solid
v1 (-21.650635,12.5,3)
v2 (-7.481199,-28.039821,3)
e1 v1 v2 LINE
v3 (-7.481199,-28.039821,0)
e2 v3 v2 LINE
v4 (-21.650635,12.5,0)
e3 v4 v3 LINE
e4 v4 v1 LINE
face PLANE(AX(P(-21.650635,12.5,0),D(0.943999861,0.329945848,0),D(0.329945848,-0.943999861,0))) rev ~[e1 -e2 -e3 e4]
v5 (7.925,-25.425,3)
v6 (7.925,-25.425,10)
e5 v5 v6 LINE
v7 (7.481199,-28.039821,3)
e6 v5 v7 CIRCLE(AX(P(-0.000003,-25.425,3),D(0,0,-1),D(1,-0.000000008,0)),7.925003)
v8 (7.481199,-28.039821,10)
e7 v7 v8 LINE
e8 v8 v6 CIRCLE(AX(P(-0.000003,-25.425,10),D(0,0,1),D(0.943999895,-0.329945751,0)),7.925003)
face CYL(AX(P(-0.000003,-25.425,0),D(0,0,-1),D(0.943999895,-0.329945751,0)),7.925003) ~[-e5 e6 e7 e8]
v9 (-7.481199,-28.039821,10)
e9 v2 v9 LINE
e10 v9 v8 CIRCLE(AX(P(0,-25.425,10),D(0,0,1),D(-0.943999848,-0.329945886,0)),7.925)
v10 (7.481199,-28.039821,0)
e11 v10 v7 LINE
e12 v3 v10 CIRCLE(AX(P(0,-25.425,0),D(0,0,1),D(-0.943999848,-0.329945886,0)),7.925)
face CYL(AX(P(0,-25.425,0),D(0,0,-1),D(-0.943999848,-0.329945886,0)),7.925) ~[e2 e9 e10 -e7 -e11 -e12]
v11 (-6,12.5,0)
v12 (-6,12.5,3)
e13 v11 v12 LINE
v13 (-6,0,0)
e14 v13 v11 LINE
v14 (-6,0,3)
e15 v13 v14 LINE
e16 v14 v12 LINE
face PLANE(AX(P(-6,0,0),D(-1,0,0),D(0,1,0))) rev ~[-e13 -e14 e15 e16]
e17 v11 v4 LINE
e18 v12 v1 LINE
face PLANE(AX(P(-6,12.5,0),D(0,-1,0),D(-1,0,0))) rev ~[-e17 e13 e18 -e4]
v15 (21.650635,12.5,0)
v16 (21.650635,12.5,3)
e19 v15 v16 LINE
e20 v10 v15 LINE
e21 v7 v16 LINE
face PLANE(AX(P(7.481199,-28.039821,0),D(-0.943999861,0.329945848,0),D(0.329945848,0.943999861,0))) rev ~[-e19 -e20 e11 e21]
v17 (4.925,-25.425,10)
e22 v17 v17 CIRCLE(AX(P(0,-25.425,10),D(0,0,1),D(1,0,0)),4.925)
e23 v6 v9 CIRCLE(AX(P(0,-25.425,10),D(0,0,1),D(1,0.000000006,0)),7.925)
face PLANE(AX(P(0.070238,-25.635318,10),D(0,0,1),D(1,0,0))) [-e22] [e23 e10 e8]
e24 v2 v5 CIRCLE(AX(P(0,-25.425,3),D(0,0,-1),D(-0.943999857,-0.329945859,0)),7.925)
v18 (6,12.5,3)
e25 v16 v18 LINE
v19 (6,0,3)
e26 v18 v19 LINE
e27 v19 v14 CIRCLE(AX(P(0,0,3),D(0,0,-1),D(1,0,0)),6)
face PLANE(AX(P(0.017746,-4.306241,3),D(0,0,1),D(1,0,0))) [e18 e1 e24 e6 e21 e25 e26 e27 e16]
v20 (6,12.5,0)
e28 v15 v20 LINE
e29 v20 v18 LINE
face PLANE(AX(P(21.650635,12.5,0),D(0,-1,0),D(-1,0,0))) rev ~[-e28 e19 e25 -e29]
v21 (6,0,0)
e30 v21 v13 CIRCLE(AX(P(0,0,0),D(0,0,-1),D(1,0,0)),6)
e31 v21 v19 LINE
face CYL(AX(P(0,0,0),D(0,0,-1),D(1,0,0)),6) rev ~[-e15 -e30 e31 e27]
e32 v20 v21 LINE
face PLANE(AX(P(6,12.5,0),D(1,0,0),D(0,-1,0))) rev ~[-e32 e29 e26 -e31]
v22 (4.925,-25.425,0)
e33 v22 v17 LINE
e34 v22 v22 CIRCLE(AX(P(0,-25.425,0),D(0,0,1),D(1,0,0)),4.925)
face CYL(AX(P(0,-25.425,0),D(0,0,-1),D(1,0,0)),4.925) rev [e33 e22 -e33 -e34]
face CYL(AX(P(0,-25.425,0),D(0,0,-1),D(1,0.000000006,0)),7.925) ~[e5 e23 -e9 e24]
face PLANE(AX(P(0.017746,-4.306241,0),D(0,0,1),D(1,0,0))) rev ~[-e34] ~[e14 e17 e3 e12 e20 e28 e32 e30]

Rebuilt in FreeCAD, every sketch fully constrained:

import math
import FreeCAD as App
import Part
import Sketcher

V = App.Vector
Q = App.Units.Quantity

doc = App.newDocument("Part")
body = doc.addObject("PartDesign::Body", "Body")

sketch1 = doc.addObject("Sketcher::SketchObject", "Sketch")
body.addObject(sketch1)
sketch1.AttachmentSupport = (doc.XY_Plane, [""])
sketch1.MapMode = "FlatFace"
sketch1.addGeometry([
    Part.ArcOfCircle(Part.Circle(V(0, -25.425, 0), V(0, 0, 1), 7.925), math.radians(0), math.radians(199.265489)),
    Part.ArcOfCircle(Part.Circle(V(0, -25.425, 0), V(0, 0, 1), 7.925), math.radians(-160.734509), math.radians(-19.265491)),
    Part.ArcOfCircle(Part.Circle(V(-0.000003, -25.425, 0), V(0, 0, 1), 7.925003), math.radians(-19.265483), math.radians(0)),
    Part.Circle(V(0, -25.425, 0), V(0, 0, 1), 4.925),
], False)
sketch1.addConstraint([
    Sketcher.Constraint("Tangent", 0, 2, 1, 1),
    Sketcher.Constraint("Tangent", 1, 2, 2, 1),
    Sketcher.Constraint("Tangent", 2, 2, 0, 1),
    Sketcher.Constraint("Coincident", 3, 3, 0, 3),
    Sketcher.Constraint("Symmetric", 0, 2, 1, 2, -2),
    Sketcher.Constraint("Horizontal", 3, 3, 2, 2),
    Sketcher.Constraint("Diameter", 3, Q("9.85 mm")),
    Sketcher.Constraint("Radius", 0, Q("7.925 mm")),
    Sketcher.Constraint("DistanceY", 0, 3, -1, 1, Q("25.425 mm")),
    Sketcher.Constraint("DistanceX", 0, 2, -1, 1, Q("7.481199 mm")),
])
pad1 = doc.addObject("PartDesign::Pad", "Pad")
body.addObject(pad1)
pad1.Profile = sketch1
pad1.Length = 10

sketch2 = doc.addObject("Sketcher::SketchObject", "Sketch001")
body.addObject(sketch2)
sketch2.AttachmentSupport = (doc.XY_Plane, [""])
sketch2.MapMode = "FlatFace"
sketch2.addGeometry([
    Part.LineSegment(V(-6, 12.5, 0), V(-21.650635, 12.5, 0)),
    Part.LineSegment(V(-21.650635, 12.5, 0), V(-7.481199, -28.039821, 0)),
    Part.ArcOfCircle(Part.Circle(V(0, -25.425, 0), V(0, 0, 1), 7.925), math.radians(0), math.radians(199.265489)),
    Part.ArcOfCircle(Part.Circle(V(-0.000003, -25.425, 0), V(0, 0, 1), 7.925003), math.radians(-19.265483), math.radians(0)),
    Part.LineSegment(V(7.481199, -28.039821, 0), V(21.650635, 12.5, 0)),
    Part.LineSegment(V(21.650635, 12.5, 0), V(6, 12.5, 0)),
    Part.LineSegment(V(6, 12.5, 0), V(6, 0, 0)),
    Part.ArcOfCircle(Part.Circle(V(0, 0, 0), V(0, 0, 1), 6), math.radians(180), math.radians(360)),
    Part.LineSegment(V(-6, 0, 0), V(-6, 12.5, 0)),
], False)
sketch2.addConstraint([
    Sketcher.Constraint("Coincident", 0, 2, 1, 1),
    Sketcher.Constraint("Tangent", 1, 2, 2, 2),
    Sketcher.Constraint("Tangent", 2, 1, 3, 2),
    Sketcher.Constraint("Tangent", 3, 1, 4, 1),
    Sketcher.Constraint("Coincident", 4, 2, 5, 1),
    Sketcher.Constraint("Coincident", 5, 2, 6, 1),
    Sketcher.Constraint("Tangent", 6, 2, 7, 2),
    Sketcher.Constraint("Tangent", 7, 1, 8, 1),
    Sketcher.Constraint("Coincident", 8, 2, 0, 1),
    Sketcher.Constraint("Horizontal", 0),
    Sketcher.Constraint("Horizontal", 5),
    Sketcher.Constraint("Vertical", 6),
    Sketcher.Constraint("Vertical", 8),
    Sketcher.Constraint("Coincident", 7, 3, -1, 1),
    Sketcher.Constraint("Symmetric", 1, 2, 3, 1, -2),
    Sketcher.Constraint("Symmetric", 0, 2, 4, 2, -2),
    Sketcher.Constraint("Horizontal", 3, 3, 2, 1),
    Sketcher.Constraint("Radius", 7, Q("6 mm")),
    Sketcher.Constraint("DistanceY", 6, 2, 6, 1, Q("12.5 mm")),
    Sketcher.Constraint("Radius", 2, Q("7.925 mm")),
    Sketcher.Constraint("DistanceY", 2, 3, -1, 1, Q("25.425 mm")),
    Sketcher.Constraint("DistanceX", 1, 2, -1, 1, Q("7.481199 mm")),
])
pad2 = doc.addObject("PartDesign::Pad", "Pad001")
body.addObject(pad2)
pad2.Profile = sketch2
pad2.Length = 3

doc.recompute()
